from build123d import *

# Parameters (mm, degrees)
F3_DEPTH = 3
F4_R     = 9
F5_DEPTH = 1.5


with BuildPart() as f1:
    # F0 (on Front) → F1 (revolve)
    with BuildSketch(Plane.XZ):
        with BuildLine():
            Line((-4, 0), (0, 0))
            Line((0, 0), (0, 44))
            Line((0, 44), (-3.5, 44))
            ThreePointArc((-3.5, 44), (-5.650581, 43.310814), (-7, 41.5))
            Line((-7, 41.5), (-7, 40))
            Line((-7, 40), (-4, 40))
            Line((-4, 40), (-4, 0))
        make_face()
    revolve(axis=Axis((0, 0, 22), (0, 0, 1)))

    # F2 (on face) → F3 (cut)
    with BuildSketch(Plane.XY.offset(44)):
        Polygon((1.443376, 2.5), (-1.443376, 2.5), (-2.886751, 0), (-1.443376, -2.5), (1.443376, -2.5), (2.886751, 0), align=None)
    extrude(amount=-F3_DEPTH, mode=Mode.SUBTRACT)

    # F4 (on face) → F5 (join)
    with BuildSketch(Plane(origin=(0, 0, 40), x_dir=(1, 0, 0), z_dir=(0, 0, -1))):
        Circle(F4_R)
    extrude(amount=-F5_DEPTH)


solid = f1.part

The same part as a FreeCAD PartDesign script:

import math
import FreeCAD as App
import Part
import Sketcher
from FreeCAD import Vector
Q = App.Units.Quantity

doc = App.newDocument("Part")
body = doc.addObject("PartDesign::Body", "Body")

# Sketch on XZ plane
sketch1 = body.newObject("Sketcher::SketchObject", "Sketch")
sketch1.AttachmentSupport = (doc.getObject("XZ_Plane"), [""])
sketch1.MapMode = "FlatFace"
sketch1.addGeometry(Part.LineSegment(Vector(-4, 0, 0), Vector(0, 0, 0)), False)
sketch1.addGeometry(Part.LineSegment(Vector(0, 0, 0), Vector(0, 44, 0)), False)
sketch1.addGeometry(Part.LineSegment(Vector(0, 44, 0), Vector(-3.5, 44, 0)), False)
sketch1.addGeometry(Part.ArcOfCircle(Part.Circle(Vector(-3.5, 40.3, 0), Vector(0, 0, 1), 3.7), math.radians(90.000003), math.radians(161.075353)), False)
sketch1.addGeometry(Part.LineSegment(Vector(-7, 41.5, 0), Vector(-7, 40, 0)), False)
sketch1.addGeometry(Part.LineSegment(Vector(-7, 40, 0), Vector(-4, 40, 0)), False)
sketch1.addGeometry(Part.LineSegment(Vector(-4, 40, 0), Vector(-4, 0, 0)), False)
sketch1.addConstraint(Sketcher.Constraint("Coincident", 0, 2, 1, 1))
sketch1.addConstraint(Sketcher.Constraint("Coincident", 1, 2, 2, 1))
sketch1.addConstraint(Sketcher.Constraint("Tangent", 2, 2, 3, 1))
sketch1.addConstraint(Sketcher.Constraint("Coincident", 3, 2, 4, 1))
sketch1.addConstraint(Sketcher.Constraint("Coincident", 4, 2, 5, 1))
sketch1.addConstraint(Sketcher.Constraint("Coincident", 5, 2, 6, 1))
sketch1.addConstraint(Sketcher.Constraint("Coincident", 6, 2, 0, 1))
sketch1.addConstraint(Sketcher.Constraint("Horizontal", 0))
sketch1.addConstraint(Sketcher.Constraint("Vertical", 1))
sketch1.addConstraint(Sketcher.Constraint("Horizontal", 2))
sketch1.addConstraint(Sketcher.Constraint("Vertical", 4))
sketch1.addConstraint(Sketcher.Constraint("Horizontal", 5))
sketch1.addConstraint(Sketcher.Constraint("Vertical", 6))
sketch1.addConstraint(Sketcher.Constraint("Coincident", 0, 2, -1, 1))
sketch1.addConstraint(Sketcher.Constraint("Radius", 3, Q("3.7 mm")))
sketch1.addConstraint(Sketcher.Constraint("DistanceX", 0, 1, 0, 2, Q("4 mm")))
sketch1.addConstraint(Sketcher.Constraint("DistanceX", 5, 1, 5, 2, Q("3 mm")))
sketch1.addConstraint(Sketcher.Constraint("DistanceY", 1, 1, 1, 2, Q("44 mm")))
sketch1.addConstraint(Sketcher.Constraint("DistanceY", 6, 2, 6, 1, Q("40 mm")))
sketch1.addConstraint(Sketcher.Constraint("DistanceX", 2, 2, 2, 1, Q("3.5 mm")))
revolution = body.newObject("PartDesign::Revolution", "Revolution")
revolution.Profile = sketch1
revolution.ReferenceAxis = (sketch1, ["V_Axis"])
revolution.Angle = 360

# Sketch on XY plane
sketch2 = body.newObject("Sketcher::SketchObject", "Sketch001")
sketch2.AttachmentSupport = (doc.getObject("XY_Plane"), [""])
sketch2.MapMode = "FlatFace"
sketch2.AttachmentOffset = App.Placement(Vector(0, 0, 44), App.Rotation())
sketch2.addGeometry(Part.LineSegment(Vector(1.443376, 2.5, 0), Vector(-1.443376, 2.5, 0)), False)
sketch2.addGeometry(Part.LineSegment(Vector(-1.443376, 2.5, 0), Vector(-2.886751, 0, 0)), False)
sketch2.addGeometry(Part.LineSegment(Vector(-2.886751, 0, 0), Vector(-1.443376, -2.5, 0)), False)
sketch2.addGeometry(Part.LineSegment(Vector(-1.443376, -2.5, 0), Vector(1.443376, -2.5, 0)), False)
sketch2.addGeometry(Part.LineSegment(Vector(1.443376, -2.5, 0), Vector(2.886751, 0, 0)), False)
sketch2.addGeometry(Part.LineSegment(Vector(2.886751, 0, 0), Vector(1.443376, 2.5, 0)), False)
sketch2.addConstraint(Sketcher.Constraint("Coincident", 0, 2, 1, 1))
sketch2.addConstraint(Sketcher.Constraint("Coincident", 1, 2, 2, 1))
sketch2.addConstraint(Sketcher.Constraint("Coincident", 2, 2, 3, 1))
sketch2.addConstraint(Sketcher.Constraint("Coincident", 3, 2, 4, 1))
sketch2.addConstraint(Sketcher.Constraint("Coincident", 4, 2, 5, 1))
sketch2.addConstraint(Sketcher.Constraint("Coincident", 5, 2, 0, 1))
sketch2.addConstraint(Sketcher.Constraint("Horizontal", 0))
sketch2.addConstraint(Sketcher.Constraint("Horizontal", 3))
sketch2.addConstraint(Sketcher.Constraint("Symmetric", 0, 2, 3, 2, -1, 1))
sketch2.addConstraint(Sketcher.Constraint("Symmetric", 1, 2, 4, 2, -1, 1))
sketch2.addConstraint(Sketcher.Constraint("PointOnObject", 1, 2, -1))
sketch2.addConstraint(Sketcher.Constraint("Parallel", 2, 5))
sketch2.addConstraint(Sketcher.Constraint("Vertical", 0, 2, 2, 2))
sketch2.addConstraint(Sketcher.Constraint("Angle", 1, Q("-119.999988 deg")))
sketch2.addConstraint(Sketcher.Constraint("DistanceY", 2, 2, 0, 2, Q("5 mm")))
sketch2.addConstraint(Sketcher.Constraint("DistanceX", 0, 2, 0, 1, Q("2.886752 mm")))
pocket1 = body.newObject("PartDesign::Pocket", "Pocket")
pocket1.Profile = sketch2
pocket1.Length = 3

# Sketch on XY plane
sketch3 = body.newObject("Sketcher::SketchObject", "Sketch002")
sketch3.AttachmentSupport = (doc.getObject("XY_Plane"), [""])
sketch3.MapMode = "FlatFace"
sketch3.AttachmentOffset = App.Placement(Vector(0, 0, 40), App.Rotation())
sketch3.addGeometry(Part.Circle(Vector(0, 0, 0), Vector(0, 0, 1), 9), False)
sketch3.addConstraint(Sketcher.Constraint("Coincident", 0, 3, -1, 1))
sketch3.addConstraint(Sketcher.Constraint("Diameter", 0, Q("18 mm")))
pad1 = body.newObject("PartDesign::Pad", "Pad")
pad1.Profile = sketch3
pad1.Length = 1.5

doc.recompute()
